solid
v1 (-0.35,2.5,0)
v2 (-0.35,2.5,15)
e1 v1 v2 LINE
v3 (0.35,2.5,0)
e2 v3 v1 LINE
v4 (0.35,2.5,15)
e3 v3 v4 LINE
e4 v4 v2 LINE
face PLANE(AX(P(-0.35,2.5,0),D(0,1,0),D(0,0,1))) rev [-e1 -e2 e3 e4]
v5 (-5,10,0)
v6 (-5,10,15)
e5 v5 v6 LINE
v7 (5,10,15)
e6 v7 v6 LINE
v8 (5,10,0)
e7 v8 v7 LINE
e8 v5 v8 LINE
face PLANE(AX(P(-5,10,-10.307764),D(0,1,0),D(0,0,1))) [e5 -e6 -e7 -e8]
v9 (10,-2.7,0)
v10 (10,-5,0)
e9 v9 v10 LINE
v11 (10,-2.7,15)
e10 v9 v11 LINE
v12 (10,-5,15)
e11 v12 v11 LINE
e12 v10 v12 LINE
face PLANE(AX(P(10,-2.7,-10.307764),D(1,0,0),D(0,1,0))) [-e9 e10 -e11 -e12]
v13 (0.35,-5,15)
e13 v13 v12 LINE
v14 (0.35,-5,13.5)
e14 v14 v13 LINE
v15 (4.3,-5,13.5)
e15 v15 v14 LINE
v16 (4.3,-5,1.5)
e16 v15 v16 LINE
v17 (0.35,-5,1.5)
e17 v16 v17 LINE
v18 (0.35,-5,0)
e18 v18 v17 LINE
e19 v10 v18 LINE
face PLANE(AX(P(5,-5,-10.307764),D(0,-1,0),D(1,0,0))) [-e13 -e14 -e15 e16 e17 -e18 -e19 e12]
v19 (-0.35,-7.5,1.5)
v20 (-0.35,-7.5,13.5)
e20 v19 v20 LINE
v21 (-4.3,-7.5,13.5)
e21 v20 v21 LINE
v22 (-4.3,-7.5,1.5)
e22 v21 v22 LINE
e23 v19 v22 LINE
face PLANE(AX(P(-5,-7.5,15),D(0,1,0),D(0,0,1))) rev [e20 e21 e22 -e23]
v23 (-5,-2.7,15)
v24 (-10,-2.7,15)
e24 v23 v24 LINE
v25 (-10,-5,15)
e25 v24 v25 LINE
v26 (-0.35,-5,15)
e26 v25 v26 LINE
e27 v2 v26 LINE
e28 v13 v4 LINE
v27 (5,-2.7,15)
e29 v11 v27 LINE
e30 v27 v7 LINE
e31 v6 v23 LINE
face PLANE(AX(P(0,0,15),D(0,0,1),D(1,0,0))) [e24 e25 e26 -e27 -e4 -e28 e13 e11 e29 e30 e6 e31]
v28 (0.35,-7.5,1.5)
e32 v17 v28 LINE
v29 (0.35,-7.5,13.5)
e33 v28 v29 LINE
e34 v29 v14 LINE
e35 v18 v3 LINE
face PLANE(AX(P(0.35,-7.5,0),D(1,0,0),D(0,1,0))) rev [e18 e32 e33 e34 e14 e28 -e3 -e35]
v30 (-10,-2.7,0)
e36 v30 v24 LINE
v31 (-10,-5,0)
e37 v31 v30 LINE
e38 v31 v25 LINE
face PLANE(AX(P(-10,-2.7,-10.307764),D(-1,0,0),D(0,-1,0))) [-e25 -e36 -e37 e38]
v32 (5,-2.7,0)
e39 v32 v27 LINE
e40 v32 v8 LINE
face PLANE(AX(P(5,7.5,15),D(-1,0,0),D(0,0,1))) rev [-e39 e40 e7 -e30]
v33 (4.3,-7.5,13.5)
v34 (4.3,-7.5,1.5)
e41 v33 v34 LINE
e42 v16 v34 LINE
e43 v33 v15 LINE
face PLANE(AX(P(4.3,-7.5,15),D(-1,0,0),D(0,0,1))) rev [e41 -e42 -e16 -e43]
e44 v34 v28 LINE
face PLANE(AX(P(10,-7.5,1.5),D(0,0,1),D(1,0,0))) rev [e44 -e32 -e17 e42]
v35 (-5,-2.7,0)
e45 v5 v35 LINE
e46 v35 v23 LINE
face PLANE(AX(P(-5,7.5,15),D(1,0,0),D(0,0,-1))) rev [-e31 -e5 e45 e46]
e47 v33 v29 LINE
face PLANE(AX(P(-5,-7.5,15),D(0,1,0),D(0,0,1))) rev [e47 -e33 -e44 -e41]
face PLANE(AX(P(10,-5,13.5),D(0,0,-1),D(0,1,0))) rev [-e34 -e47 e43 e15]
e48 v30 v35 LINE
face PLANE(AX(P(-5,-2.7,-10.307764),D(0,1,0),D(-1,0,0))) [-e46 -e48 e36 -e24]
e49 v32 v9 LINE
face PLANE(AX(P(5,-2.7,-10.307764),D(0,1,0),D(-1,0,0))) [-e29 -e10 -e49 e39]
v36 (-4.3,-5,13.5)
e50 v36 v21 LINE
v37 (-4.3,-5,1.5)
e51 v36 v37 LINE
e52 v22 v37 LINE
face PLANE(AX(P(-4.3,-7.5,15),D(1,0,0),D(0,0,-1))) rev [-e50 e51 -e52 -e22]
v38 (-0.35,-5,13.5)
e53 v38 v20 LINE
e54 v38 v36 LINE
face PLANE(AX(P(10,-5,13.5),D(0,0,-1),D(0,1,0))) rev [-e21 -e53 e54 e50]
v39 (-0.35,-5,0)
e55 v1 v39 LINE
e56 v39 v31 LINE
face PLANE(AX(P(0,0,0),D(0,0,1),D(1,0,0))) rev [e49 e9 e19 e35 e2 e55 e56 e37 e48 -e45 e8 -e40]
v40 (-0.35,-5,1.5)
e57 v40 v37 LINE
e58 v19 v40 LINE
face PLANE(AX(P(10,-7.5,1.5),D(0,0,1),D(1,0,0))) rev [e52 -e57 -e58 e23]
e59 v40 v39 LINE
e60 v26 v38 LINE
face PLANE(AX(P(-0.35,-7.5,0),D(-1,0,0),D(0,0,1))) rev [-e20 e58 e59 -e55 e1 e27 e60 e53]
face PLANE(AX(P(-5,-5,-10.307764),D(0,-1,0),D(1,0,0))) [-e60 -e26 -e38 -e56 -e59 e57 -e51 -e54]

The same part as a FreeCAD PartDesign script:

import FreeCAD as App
import Part
import Sketcher

V = App.Vector
Q = App.Units.Quantity

doc = App.newDocument("Part")
body = doc.addObject("PartDesign::Body", "Body")

sketch1 = body.newObject("Sketcher::SketchObject", "Sketch")
sketch1.AttachmentSupport = (doc.getObject("XY_Plane"), [""])
sketch1.MapMode = "FlatFace"
sketch1.addGeometry(Part.LineSegment(V(-5, 8, 0), V(-5, -8, 0)), False)
sketch1.addGeometry(Part.LineSegment(V(-5, -8, 0), V(5, -8, 0)), False)
sketch1.addGeometry(Part.LineSegment(V(5, -8, 0), V(5, 8, 0)), False)
sketch1.addGeometry(Part.LineSegment(V(5, 8, 0), V(-5, 8, 0)), False)
sketch1.addConstraint(Sketcher.Constraint("Coincident", 0, 2, 1, 1))
sketch1.addConstraint(Sketcher.Constraint("Coincident", 1, 2, 2, 1))
sketch1.addConstraint(Sketcher.Constraint("Coincident", 2, 2, 3, 1))
sketch1.addConstraint(Sketcher.Constraint("Coincident", 3, 2, 0, 1))
sketch1.addConstraint(Sketcher.Constraint("Vertical", 0))
sketch1.addConstraint(Sketcher.Constraint("Horizontal", 1))
sketch1.addConstraint(Sketcher.Constraint("Vertical", 2))
sketch1.addConstraint(Sketcher.Constraint("Horizontal", 3))
sketch1.addConstraint(Sketcher.Constraint("Symmetric", 0, 2, 2, 2, -1, 1))
sketch1.addConstraint(Sketcher.Constraint("DistanceX", 1, 1, 1, 2, Q("10 mm")))
sketch1.addConstraint(Sketcher.Constraint("DistanceY", 0, 2, 0, 1, Q("15 mm")))
pad1 = body.newObject("PartDesign::Pad", "Pad")
pad1.Profile = sketch1
pad1.Length = 15

sketch2 = body.newObject("Sketcher::SketchObject", "Sketch001")
sketch2.AttachmentSupport = (doc.getObject("XY_Plane"), [""])
sketch2.MapMode = "FlatFace"
sketch2.AttachmentOffset = App.Placement(V(0, 0, 15), App.Rotation())
sketch2.addGeometry(Part.LineSegment(V(-0.3, 2.5, 0), V(-0.3, -7.5, 0)), False)
sketch2.addGeometry(Part.LineSegment(V(-0.3, -7.5, 0), V(0.3, -7.5, 0)), False)
sketch2.addGeometry(Part.LineSegment(V(0.3, -7.5, 0), V(0.3, 2.5, 0)), False)
sketch2.addGeometry(Part.LineSegment(V(0.3, 2.5, 0), V(-0.3, 2.5, 0)), False)
sketch2.addConstraint(Sketcher.Constraint("Coincident", 0, 2, 1, 1))
sketch2.addConstraint(Sketcher.Constraint("Coincident", 1, 2, 2, 1))
sketch2.addConstraint(Sketcher.Constraint("Coincident", 2, 2, 3, 1))
sketch2.addConstraint(Sketcher.Constraint("Coincident", 3, 2, 0, 1))
sketch2.addConstraint(Sketcher.Constraint("Vertical", 0))
sketch2.addConstraint(Sketcher.Constraint("Horizontal", 1))
sketch2.addConstraint(Sketcher.Constraint("Vertical", 2))
sketch2.addConstraint(Sketcher.Constraint("Horizontal", 3))
sketch2.addConstraint(Sketcher.Constraint("DistanceY", 0, 2, 0, 1, Q("10 mm")))
sketch2.addConstraint(Sketcher.Constraint("DistanceX", 1, 1, 1, 2, Q("0.7 mm")))
sketch2.addConstraint(Sketcher.Constraint("DistanceY", 0, 2, -1, 1, Q("7.5 mm")))
sketch2.addConstraint(Sketcher.Constraint("DistanceX", 0, 2, -1, 1, Q("0.35 mm")))
pocket1 = body.newObject("PartDesign::Pocket", "Pocket")
pocket1.Profile = sketch2
pocket1.Type = "ThroughAll"
pocket1.Midplane = True

sketch3 = body.newObject("Sketcher::SketchObject", "Sketch002")
sketch3.AttachmentSupport = (doc.getObject("XY_Plane"), [""])
sketch3.MapMode = "FlatFace"
sketch3.AttachmentOffset = App.Placement(V(0, 0, 15), App.Rotation())
sketch3.addGeometry(Part.LineSegment(V(-10, -2.7, 0), V(-10, -5, 0)), False)
sketch3.addGeometry(Part.LineSegment(V(-10, -5, 0), V(-5, -5, 0)), False)
sketch3.addGeometry(Part.LineSegment(V(-5, -5, 0), V(-5, -2.7, 0)), False)
sketch3.addGeometry(Part.LineSegment(V(-5, -2.7, 0), V(-10, -2.7, 0)), False)
sketch3.addGeometry(Part.LineSegment(V(5, -2.7, 0), V(5, -5, 0)), False)
sketch3.addGeometry(Part.LineSegment(V(5, -5, 0), V(10, -5, 0)), False)
sketch3.addGeometry(Part.LineSegment(V(10, -5, 0), V(10, -2.7, 0)), False)
sketch3.addGeometry(Part.LineSegment(V(10, -2.7, 0), V(5, -2.7, 0)), False)
sketch3.addGeometry(Part.LineSegment(V(-5, 10, 0), V(-5, 7.5, 0)), False)
sketch3.addGeometry(Part.LineSegment(V(-5, 7.5, 0), V(5, 7.5, 0)), False)
sketch3.addGeometry(Part.LineSegment(V(5, 7.5, 0), V(5, 10, 0)), False)
sketch3.addGeometry(Part.LineSegment(V(5, 10, 0), V(-5, 10, 0)), False)
sketch3.addConstraint(Sketcher.Constraint("Coincident", 0, 2, 1, 1))
sketch3.addConstraint(Sketcher.Constraint("Coincident", 1, 2, 2, 1))
sketch3.addConstraint(Sketcher.Constraint("Coincident", 2, 2, 3, 1))
sketch3.addConstraint(Sketcher.Constraint("Coincident", 3, 2, 0, 1))
sketch3.addConstraint(Sketcher.Constraint("Coincident", 4, 2, 5, 1))
sketch3.addConstraint(Sketcher.Constraint("Coincident", 5, 2, 6, 1))
sketch3.addConstraint(Sketcher.Constraint("Coincident", 6, 2, 7, 1))
sketch3.addConstraint(Sketcher.Constraint("Coincident", 7, 2, 4, 1))
sketch3.addConstraint(Sketcher.Constraint("Coincident", 8, 2, 9, 1))
sketch3.addConstraint(Sketcher.Constraint("Coincident", 9, 2, 10, 1))
sketch3.addConstraint(Sketcher.Constraint("Coincident", 10, 2, 11, 1))
sketch3.addConstraint(Sketcher.Constraint("Coincident", 11, 2, 8, 1))
sketch3.addConstraint(Sketcher.Constraint("Vertical", 0))
sketch3.addConstraint(Sketcher.Constraint("Horizontal", 1))
sketch3.addConstraint(Sketcher.Constraint("Vertical", 2))
sketch3.addConstraint(Sketcher.Constraint("Horizontal", 3))
sketch3.addConstraint(Sketcher.Constraint("Vertical", 4))
sketch3.addConstraint(Sketcher.Constraint("Horizontal", 5))
sketch3.addConstraint(Sketcher.Constraint("Vertical", 6))
sketch3.addConstraint(Sketcher.Constraint("Horizontal", 7))
sketch3.addConstraint(Sketcher.Constraint("Vertical", 8))
sketch3.addConstraint(Sketcher.Constraint("Horizontal", 9))
sketch3.addConstraint(Sketcher.Constraint("Vertical", 10))
sketch3.addConstraint(Sketcher.Constraint("Horizontal", 11))
sketch3.addConstraint(Sketcher.Constraint("Symmetric", 1, 2, 4, 2, -2))
sketch3.addConstraint(Sketcher.Constraint("Symmetric", 3, 2, 6, 2, -2))
sketch3.addConstraint(Sketcher.Constraint("Vertical", 2, 2, 8, 2))
sketch3.addConstraint(Sketcher.Constraint("Vertical", 7, 2, 9, 2))
sketch3.addConstraint(Sketcher.Constraint("DistanceX", 1, 1, 1, 2, Q("5 mm")))
sketch3.addConstraint(Sketcher.Constraint("DistanceX", 9, 1, 9, 2, Q("10 mm")))
sketch3.addConstraint(Sketcher.Constraint("DistanceY", 0, 2, 0, 1, Q("2.3 mm")))
sketch3.addConstraint(Sketcher.Constraint("DistanceY", 8, 2, 8, 1, Q("2.5 mm")))
sketch3.addConstraint(Sketcher.Constraint("DistanceY", 0, 2, -1, 1, Q("5 mm")))
sketch3.addConstraint(Sketcher.Constraint("DistanceY", -1, 1, 10, 2, Q("10 mm")))
pad2 = body.newObject("PartDesign::Pad", "Pad001")
pad2.Profile = sketch3
pad2.Length = 15
pad2.Reversed = True

sketch4 = body.newObject("Sketcher::SketchObject", "Sketch003")
sketch4.AttachmentSupport = (doc.getObject("YZ_Plane"), [""])
sketch4.MapMode = "FlatFace"
sketch4.AttachmentOffset = App.Placement(V(0, 0, -5), App.Rotation())
sketch4.addGeometry(Part.LineSegment(V(-5, 0, 0), V(-7.5, 0, 0)), False)
sketch4.addGeometry(Part.LineSegment(V(-7.5, 0, 0), V(-7.5, 1.5, 0)), False)
sketch4.addGeometry(Part.LineSegment(V(-7.5, 1.5, 0), V(-5, 1.5, 0)), False)
sketch4.addGeometry(Part.LineSegment(V(-5, 1.5, 0), V(-5, 0, 0)), False)
sketch4.addGeometry(Part.LineSegment(V(-5, 13.5, 0), V(-7.5, 13.5, 0)), False)
sketch4.addGeometry(Part.LineSegment(V(-7.5, 13.5, 0), V(-7.5, 15, 0)), False)
sketch4.addGeometry(Part.LineSegment(V(-7.5, 15, 0), V(-5, 15, 0)), False)
sketch4.addGeometry(Part.LineSegment(V(-5, 15, 0), V(-5, 13.5, 0)), False)
sketch4.addConstraint(Sketcher.Constraint("Coincident", 0, 2, 1, 1))
sketch4.addConstraint(Sketcher.Constraint("Coincident", 1, 2, 2, 1))
sketch4.addConstraint(Sketcher.Constraint("Coincident", 2, 2, 3, 1))
sketch4.addConstraint(Sketcher.Constraint("Coincident", 3, 2, 0, 1))
sketch4.addConstraint(Sketcher.Constraint("Coincident", 4, 2, 5, 1))
sketch4.addConstraint(Sketcher.Constraint("Coincident", 5, 2, 6, 1))
sketch4.addConstraint(Sketcher.Constraint("Coincident", 6, 2, 7, 1))
sketch4.addConstraint(Sketcher.Constraint("Coincident", 7, 2, 4, 1))
sketch4.addConstraint(Sketcher.Constraint("Horizontal", 0))
sketch4.addConstraint(Sketcher.Constraint("Vertical", 1))
sketch4.addConstraint(Sketcher.Constraint("Horizontal", 2))
sketch4.addConstraint(Sketcher.Constraint("Vertical", 3))
sketch4.addConstraint(Sketcher.Constraint("Horizontal", 4))
sketch4.addConstraint(Sketcher.Constraint("Vertical", 5))
sketch4.addConstraint(Sketcher.Constraint("Horizontal", 6))
sketch4.addConstraint(Sketcher.Constraint("Vertical", 7))
sketch4.addConstraint(Sketcher.Constraint("PointOnObject", 0, 2, -1))
sketch4.addConstraint(Sketcher.Constraint("Vertical", 1, 2, 4, 2))
sketch4.addConstraint(Sketcher.Constraint("Vertical", 3, 2, 6, 2))
sketch4.addConstraint(Sketcher.Constraint("Equal", 3, 5))
sketch4.addConstraint(Sketcher.Constraint("DistanceX", 0, 2, 0, 1, Q("2.5 mm")))
sketch4.addConstraint(Sketcher.Constraint("DistanceY", 1, 1, 1, 2, Q("1.5 mm")))
sketch4.addConstraint(Sketcher.Constraint("DistanceX", 2, 2, -1, 1, Q("5 mm")))
sketch4.addConstraint(Sketcher.Constraint("DistanceY", -1, 1, 5, 2, Q("15 mm")))
pocket2 = body.newObject("PartDesign::Pocket", "Pocket001")
pocket2.Profile = sketch4
pocket2.Type = "ThroughAll"
pocket2.Midplane = True

sketch5 = body.newObject("Sketcher::SketchObject", "Sketch004")
sketch5.AttachmentSupport = (doc.getObject("XY_Plane"), [""])
sketch5.MapMode = "FlatFace"
sketch5.addGeometry(Part.LineSegment(V(-4.3, -5, 0), V(-4.3, -7.5, 0)), False)
sketch5.addGeometry(Part.LineSegment(V(-4.3, -7.5, 0), V(-5, -7.5, 0)), False)
sketch5.addGeometry(Part.LineSegment(V(-5, -7.5, 0), V(-5, -5, 0)), False)
sketch5.addGeometry(Part.LineSegment(V(-5, -5, 0), V(-4.3, -5, 0)), False)
sketch5.addGeometry(Part.LineSegment(V(5, -5, 0), V(5, -7.5, 0)), False)
sketch5.addGeometry(Part.LineSegment(V(5, -7.5, 0), V(4.3, -7.5, 0)), False)
sketch5.addGeometry(Part.LineSegment(V(4.3, -7.5, 0), V(4.3, -5, 0)), False)
sketch5.addGeometry(Part.LineSegment(V(4.3, -5, 0), V(5, -5, 0)), False)
sketch5.addConstraint(Sketcher.Constraint("Coincident", 0, 2, 1, 1))
sketch5.addConstraint(Sketcher.Constraint("Coincident", 1, 2, 2, 1))
sketch5.addConstraint(Sketcher.Constraint("Coincident", 2, 2, 3, 1))
sketch5.addConstraint(Sketcher.Constraint("Coincident", 3, 2, 0, 1))
sketch5.addConstraint(Sketcher.Constraint("Coincident", 4, 2, 5, 1))
sketch5.addConstraint(Sketcher.Constraint("Coincident", 5, 2, 6, 1))
sketch5.addConstraint(Sketcher.Constraint("Coincident", 6, 2, 7, 1))
sketch5.addConstraint(Sketcher.Constraint("Coincident", 7, 2, 4, 1))
sketch5.addConstraint(Sketcher.Constraint("Vertical", 0))
sketch5.addConstraint(Sketcher.Constraint("Horizontal", 1))
sketch5.addConstraint(Sketcher.Constraint("Vertical", 2))
sketch5.addConstraint(Sketcher.Constraint("Horizontal", 3))
sketch5.addConstraint(Sketcher.Constraint("Vertical", 4))
sketch5.addConstraint(Sketcher.Constraint("Horizontal", 5))
sketch5.addConstraint(Sketcher.Constraint("Vertical", 6))
sketch5.addConstraint(Sketcher.Constraint("Horizontal", 7))
sketch5.addConstraint(Sketcher.Constraint("Symmetric", 1, 2, 4, 2, -2))
sketch5.addConstraint(Sketcher.Constraint("Symmetric", 3, 2, 6, 2, -2))
sketch5.addConstraint(Sketcher.Constraint("DistanceX", 1, 2, 1, 1, Q("0.7 mm")))
sketch5.addConstraint(Sketcher.Constraint("DistanceY", 0, 2, 0, 1, Q("2.5 mm")))
sketch5.addConstraint(Sketcher.Constraint("DistanceX", 1, 2, -1, 1, Q("5 mm")))
sketch5.addConstraint(Sketcher.Constraint("DistanceY", 2, 2, -1, 1, Q("5 mm")))
pocket3 = body.newObject("PartDesign::Pocket", "Pocket002")
pocket3.Profile = sketch5
pocket3.Type = "ThroughAll"
pocket3.Midplane = True

doc.recompute()
